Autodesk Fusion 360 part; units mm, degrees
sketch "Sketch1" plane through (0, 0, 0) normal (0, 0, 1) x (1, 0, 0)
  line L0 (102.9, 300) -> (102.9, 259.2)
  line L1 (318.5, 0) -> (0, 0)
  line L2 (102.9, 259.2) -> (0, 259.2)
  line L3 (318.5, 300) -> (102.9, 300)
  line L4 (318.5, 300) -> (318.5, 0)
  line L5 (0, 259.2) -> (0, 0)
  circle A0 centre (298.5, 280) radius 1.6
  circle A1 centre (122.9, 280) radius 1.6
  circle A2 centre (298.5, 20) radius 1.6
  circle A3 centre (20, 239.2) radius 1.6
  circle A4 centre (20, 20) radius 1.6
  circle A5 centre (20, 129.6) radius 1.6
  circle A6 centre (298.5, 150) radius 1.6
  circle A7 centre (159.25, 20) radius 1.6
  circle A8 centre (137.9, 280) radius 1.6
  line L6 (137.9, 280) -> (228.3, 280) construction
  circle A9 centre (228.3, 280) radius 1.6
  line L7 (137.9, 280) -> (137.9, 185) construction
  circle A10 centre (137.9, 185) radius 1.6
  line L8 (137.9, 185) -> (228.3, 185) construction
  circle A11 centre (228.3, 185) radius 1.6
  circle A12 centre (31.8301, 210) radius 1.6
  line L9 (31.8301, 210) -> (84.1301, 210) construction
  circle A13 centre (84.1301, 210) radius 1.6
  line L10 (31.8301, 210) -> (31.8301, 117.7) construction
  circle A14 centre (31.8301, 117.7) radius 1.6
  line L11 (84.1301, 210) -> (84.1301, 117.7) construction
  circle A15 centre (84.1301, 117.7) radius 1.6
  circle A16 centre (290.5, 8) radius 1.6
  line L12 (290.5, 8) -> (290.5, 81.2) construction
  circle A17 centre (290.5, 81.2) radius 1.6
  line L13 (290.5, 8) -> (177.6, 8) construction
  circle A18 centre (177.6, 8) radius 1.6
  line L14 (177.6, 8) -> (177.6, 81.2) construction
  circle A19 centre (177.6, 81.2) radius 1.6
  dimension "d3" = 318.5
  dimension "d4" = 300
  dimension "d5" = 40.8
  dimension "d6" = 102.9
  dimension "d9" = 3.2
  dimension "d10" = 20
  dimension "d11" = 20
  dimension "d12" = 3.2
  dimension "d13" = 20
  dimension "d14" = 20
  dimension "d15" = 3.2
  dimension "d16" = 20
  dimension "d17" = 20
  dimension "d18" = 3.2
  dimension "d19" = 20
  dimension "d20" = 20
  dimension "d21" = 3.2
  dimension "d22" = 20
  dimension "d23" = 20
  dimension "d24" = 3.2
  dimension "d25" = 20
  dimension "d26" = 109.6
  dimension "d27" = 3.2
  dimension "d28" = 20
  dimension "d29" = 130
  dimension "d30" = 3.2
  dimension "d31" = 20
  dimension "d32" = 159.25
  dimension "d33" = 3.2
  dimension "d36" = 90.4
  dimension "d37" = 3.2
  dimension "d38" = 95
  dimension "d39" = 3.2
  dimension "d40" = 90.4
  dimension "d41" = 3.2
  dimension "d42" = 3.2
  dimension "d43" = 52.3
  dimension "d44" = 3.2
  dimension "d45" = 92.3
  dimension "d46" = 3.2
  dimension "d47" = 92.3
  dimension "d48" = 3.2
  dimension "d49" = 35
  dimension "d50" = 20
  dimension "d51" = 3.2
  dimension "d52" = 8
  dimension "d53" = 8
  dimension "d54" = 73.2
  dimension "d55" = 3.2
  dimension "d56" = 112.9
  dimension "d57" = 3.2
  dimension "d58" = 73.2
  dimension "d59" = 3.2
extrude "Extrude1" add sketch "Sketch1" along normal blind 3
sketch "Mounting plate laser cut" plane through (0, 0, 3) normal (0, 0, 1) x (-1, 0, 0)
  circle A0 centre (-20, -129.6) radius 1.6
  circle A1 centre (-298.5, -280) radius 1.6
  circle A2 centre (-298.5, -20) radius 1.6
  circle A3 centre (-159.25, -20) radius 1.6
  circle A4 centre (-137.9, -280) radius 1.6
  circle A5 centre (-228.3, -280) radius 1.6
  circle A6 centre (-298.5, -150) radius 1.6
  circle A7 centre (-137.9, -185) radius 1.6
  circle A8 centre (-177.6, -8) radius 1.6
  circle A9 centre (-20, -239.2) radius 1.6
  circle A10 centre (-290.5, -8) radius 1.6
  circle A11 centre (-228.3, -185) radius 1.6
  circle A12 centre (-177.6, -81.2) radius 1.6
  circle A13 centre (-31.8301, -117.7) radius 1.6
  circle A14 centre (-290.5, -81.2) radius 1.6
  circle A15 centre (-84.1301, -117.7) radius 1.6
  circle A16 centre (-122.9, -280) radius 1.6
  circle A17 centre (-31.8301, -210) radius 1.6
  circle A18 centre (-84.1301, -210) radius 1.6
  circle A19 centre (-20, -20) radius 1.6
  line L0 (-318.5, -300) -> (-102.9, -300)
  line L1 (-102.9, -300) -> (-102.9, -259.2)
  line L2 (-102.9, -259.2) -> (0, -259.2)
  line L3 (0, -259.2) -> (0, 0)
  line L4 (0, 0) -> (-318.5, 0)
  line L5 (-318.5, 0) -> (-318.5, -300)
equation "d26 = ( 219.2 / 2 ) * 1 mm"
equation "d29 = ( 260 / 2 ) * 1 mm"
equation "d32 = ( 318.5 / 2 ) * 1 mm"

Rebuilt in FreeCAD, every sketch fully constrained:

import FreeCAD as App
import Part
import Sketcher


def add_polygon(sketch, points):
    """Adds a closed chain of lines whose ends are joined by coincident constraints."""
    first, n = sketch.GeometryCount, len(points)
    for a, b in zip(points, points[1:] + points[:1]):
        sketch.addGeometry(Part.LineSegment(App.Vector(*a, 0), App.Vector(*b, 0)), False)
    for i in range(n):
        sketch.addConstraint(Sketcher.Constraint("Coincident", first + i, 2, first + (i + 1) % n, 1))

doc = App.newDocument("Part")
params = doc.addObject("Spreadsheet::Sheet", "Params")
for row, (alias, value) in enumerate([
    ("sketch1_diameter", "3.2 mm"),
    ("sketch1_height", "300 mm"),
    ("sketch1_width", "102.9 mm"),
    ("sketch1_width2", "318.5 mm"),
    ("sketch1_height2", "40.8 mm"),
    ("pad1_length", "3 mm"),
], start=1):
    params.set(f"A{row}", alias)
    params.set(f"B{row}", "=" + value)
    params.setAlias(f"B{row}", alias)

body = doc.addObject("PartDesign::Body", "Body")

sketch1 = body.newObject("Sketcher::SketchObject", "Sketch")
sketch1.AttachmentSupport = (doc.getObject("XY_Plane"), [""])
sketch1.MapMode = "FlatFace"
add_polygon(sketch1, [(318.5, 300), (102.9, 300), (102.9, 259.2), (0, 259.2), (0, 0), (318.5, 0)])
sketch1.addGeometry(Part.Circle(App.Vector(20, 20, 0), App.Vector(0, 0, 1), 1.6), False)
sketch1.addGeometry(Part.Circle(App.Vector(31.8301, 117.7, 0), App.Vector(0, 0, 1), 1.6), False)
sketch1.addGeometry(Part.Circle(App.Vector(20, 129.6, 0), App.Vector(0, 0, 1), 1.6), False)
sketch1.addGeometry(Part.Circle(App.Vector(84.1301, 117.7, 0), App.Vector(0, 0, 1), 1.6), False)
sketch1.addGeometry(Part.Circle(App.Vector(177.6, 8, 0), App.Vector(0, 0, 1), 1.6), False)
sketch1.addGeometry(Part.Circle(App.Vector(159.25, 20, 0), App.Vector(0, 0, 1), 1.6), False)
sketch1.addGeometry(Part.Circle(App.Vector(290.5, 8, 0), App.Vector(0, 0, 1), 1.6), False)
sketch1.addGeometry(Part.Circle(App.Vector(298.5, 20, 0), App.Vector(0, 0, 1), 1.6), False)
sketch1.addGeometry(Part.Circle(App.Vector(177.6, 81.2, 0), App.Vector(0, 0, 1), 1.6), False)
sketch1.addGeometry(Part.Circle(App.Vector(290.5, 81.2, 0), App.Vector(0, 0, 1), 1.6), False)
sketch1.addGeometry(Part.Circle(App.Vector(31.8301, 210, 0), App.Vector(0, 0, 1), 1.6), False)
sketch1.addGeometry(Part.Circle(App.Vector(137.9, 185, 0), App.Vector(0, 0, 1), 1.6), False)
sketch1.addGeometry(Part.Circle(App.Vector(84.1301, 210, 0), App.Vector(0, 0, 1), 1.6), False)
sketch1.addGeometry(Part.Circle(App.Vector(20, 239.2, 0), App.Vector(0, 0, 1), 1.6), False)
sketch1.addGeometry(Part.Circle(App.Vector(122.9, 280, 0), App.Vector(0, 0, 1), 1.6), False)
sketch1.addGeometry(Part.Circle(App.Vector(137.9, 280, 0), App.Vector(0, 0, 1), 1.6), False)
sketch1.addGeometry(Part.Circle(App.Vector(228.3, 185, 0), App.Vector(0, 0, 1), 1.6), False)
sketch1.addGeometry(Part.Circle(App.Vector(298.5, 150, 0), App.Vector(0, 0, 1), 1.6), False)
sketch1.addGeometry(Part.Circle(App.Vector(228.3, 280, 0), App.Vector(0, 0, 1), 1.6), False)
sketch1.addGeometry(Part.Circle(App.Vector(298.5, 280, 0), App.Vector(0, 0, 1), 1.6), False)
sketch1.addConstraint([
    Sketcher.Constraint("Horizontal", 0),
    Sketcher.Constraint("Vertical", 1),
    Sketcher.Constraint("Horizontal", 2),
    Sketcher.Constraint("Vertical", 3),
    Sketcher.Constraint("Horizontal", 4),
    Sketcher.Constraint("Vertical", 5),
    Sketcher.Constraint("Coincident", 3, 2, -1, 1),
    Sketcher.Constraint("Equal", 6, 7),
    Sketcher.Constraint("Equal", 7, 8),
    Sketcher.Constraint("Equal", 8, 9),
    Sketcher.Constraint("Equal", 9, 10),
    Sketcher.Constraint("Equal", 10, 11),
    Sketcher.Constraint("Equal", 11, 12),
    Sketcher.Constraint("Equal", 12, 13),
    Sketcher.Constraint("Equal", 13, 14),
    Sketcher.Constraint("Equal", 14, 15),
    Sketcher.Constraint("Equal", 15, 16),
    Sketcher.Constraint("Equal", 16, 17),
    Sketcher.Constraint("Equal", 17, 18),
    Sketcher.Constraint("Equal", 18, 19),
    Sketcher.Constraint("Equal", 19, 20),
    Sketcher.Constraint("Equal", 20, 21),
    Sketcher.Constraint("Equal", 21, 22),
    Sketcher.Constraint("Equal", 22, 23),
    Sketcher.Constraint("Equal", 23, 24),
    Sketcher.Constraint("Equal", 24, 25),
    Sketcher.Constraint("Horizontal", 7, 3, 9, 3),
    Sketcher.Constraint("Horizontal", 6, 3, 11, 3),
    Sketcher.Constraint("Horizontal", 10, 3, 12, 3),
    Sketcher.Constraint("Horizontal", 11, 3, 13, 3),
    Sketcher.Constraint("Horizontal", 14, 3, 15, 3),
    Sketcher.Constraint("Horizontal", 16, 3, 18, 3),
    Sketcher.Constraint("Horizontal", 20, 3, 21, 3),
    Sketcher.Constraint("Horizontal", 17, 3, 22, 3),
    Sketcher.Constraint("Horizontal", 21, 3, 24, 3),
    Sketcher.Constraint("Horizontal", 24, 3, 25, 3),
    Sketcher.Constraint("Vertical", 6, 3, 8, 3),
    Sketcher.Constraint("Vertical", 10, 3, 14, 3),
    Sketcher.Constraint("Vertical", 12, 3, 15, 3),
    Sketcher.Constraint("Vertical", 7, 3, 16, 3),
    Sketcher.Constraint("Vertical", 9, 3, 18, 3),
    Sketcher.Constraint("Vertical", 8, 3, 19, 3),
    Sketcher.Constraint("Vertical", 17, 3, 21, 3),
    Sketcher.Constraint("Vertical", 13, 3, 23, 3),
    Sketcher.Constraint("Vertical", 22, 3, 24, 3),
    Sketcher.Constraint("Vertical", 23, 3, 25, 3),
    Sketcher.Constraint("Diameter", 6, 3.2),
    Sketcher.Constraint("DistanceY", 5, 1, 5, 2, 300.0),
    Sketcher.Constraint("DistanceX", 2, 2, 2, 1, 102.9),
    Sketcher.Constraint("DistanceX", 4, 1, 4, 2, 318.5),
    Sketcher.Constraint("DistanceY", 1, 2, 1, 1, 40.8),
    Sketcher.Constraint("DistanceX", -1, 1, 6, 3, 20.0),
    Sketcher.Constraint("DistanceY", -1, 1, 6, 3, 20.0),
    Sketcher.Constraint("DistanceY", -1, 1, 10, 3, 8.0),
    Sketcher.Constraint("DistanceX", 12, 3, 13, 3, 8.0),
    Sketcher.Constraint("DistanceY", 17, 3, 20, 3, 95.0),
    Sketcher.Constraint("DistanceY", 23, 3, 22, 3, 35.0),
    Sketcher.Constraint("DistanceY", 13, 3, 23, 3, 130.0),
    Sketcher.Constraint("DistanceX", 0, 2, 20, 3, 20.0),
    Sketcher.Constraint("DistanceX", 0, 2, 21, 3, 35.0),
    Sketcher.Constraint("DistanceY", 19, 3, 2, 2, 20.0),
    Sketcher.Constraint("DistanceX", 13, 3, 4, 2, 20.0),
    Sketcher.Constraint("DistanceY", 6, 3, 8, 3, 109.6),
    Sketcher.Constraint("DistanceX", 7, 3, 9, 3, 52.3),
    Sketcher.Constraint("DistanceX", 10, 3, 12, 3, 112.9),
    Sketcher.Constraint("DistanceY", 10, 3, 14, 3, 73.2),
    Sketcher.Constraint("DistanceY", 7, 3, 16, 3, 92.3),
    Sketcher.Constraint("DistanceX", 17, 3, 22, 3, 90.4),
    Sketcher.Constraint("DistanceX", -1, 1, 11, 3, 159.25),
    Sketcher.Constraint("DistanceY", -1, 1, 16, 3, 210.0),
    Sketcher.Constraint("DistanceX", -1, 1, 7, 3, 31.83),
])
sketch1.setExpression("Constraints[52]", "Params.sketch1_diameter")
sketch1.setExpression("Constraints[53]", "Params.sketch1_height")
sketch1.setExpression("Constraints[54]", "Params.sketch1_width")
sketch1.setExpression("Constraints[55]", "Params.sketch1_width2")
sketch1.setExpression("Constraints[56]", "Params.sketch1_height2")
pad1 = body.newObject("PartDesign::Pad", "Pad")
pad1.Profile = sketch1
pad1.setExpression("Length", "Params.pad1_length")

doc.recompute()
